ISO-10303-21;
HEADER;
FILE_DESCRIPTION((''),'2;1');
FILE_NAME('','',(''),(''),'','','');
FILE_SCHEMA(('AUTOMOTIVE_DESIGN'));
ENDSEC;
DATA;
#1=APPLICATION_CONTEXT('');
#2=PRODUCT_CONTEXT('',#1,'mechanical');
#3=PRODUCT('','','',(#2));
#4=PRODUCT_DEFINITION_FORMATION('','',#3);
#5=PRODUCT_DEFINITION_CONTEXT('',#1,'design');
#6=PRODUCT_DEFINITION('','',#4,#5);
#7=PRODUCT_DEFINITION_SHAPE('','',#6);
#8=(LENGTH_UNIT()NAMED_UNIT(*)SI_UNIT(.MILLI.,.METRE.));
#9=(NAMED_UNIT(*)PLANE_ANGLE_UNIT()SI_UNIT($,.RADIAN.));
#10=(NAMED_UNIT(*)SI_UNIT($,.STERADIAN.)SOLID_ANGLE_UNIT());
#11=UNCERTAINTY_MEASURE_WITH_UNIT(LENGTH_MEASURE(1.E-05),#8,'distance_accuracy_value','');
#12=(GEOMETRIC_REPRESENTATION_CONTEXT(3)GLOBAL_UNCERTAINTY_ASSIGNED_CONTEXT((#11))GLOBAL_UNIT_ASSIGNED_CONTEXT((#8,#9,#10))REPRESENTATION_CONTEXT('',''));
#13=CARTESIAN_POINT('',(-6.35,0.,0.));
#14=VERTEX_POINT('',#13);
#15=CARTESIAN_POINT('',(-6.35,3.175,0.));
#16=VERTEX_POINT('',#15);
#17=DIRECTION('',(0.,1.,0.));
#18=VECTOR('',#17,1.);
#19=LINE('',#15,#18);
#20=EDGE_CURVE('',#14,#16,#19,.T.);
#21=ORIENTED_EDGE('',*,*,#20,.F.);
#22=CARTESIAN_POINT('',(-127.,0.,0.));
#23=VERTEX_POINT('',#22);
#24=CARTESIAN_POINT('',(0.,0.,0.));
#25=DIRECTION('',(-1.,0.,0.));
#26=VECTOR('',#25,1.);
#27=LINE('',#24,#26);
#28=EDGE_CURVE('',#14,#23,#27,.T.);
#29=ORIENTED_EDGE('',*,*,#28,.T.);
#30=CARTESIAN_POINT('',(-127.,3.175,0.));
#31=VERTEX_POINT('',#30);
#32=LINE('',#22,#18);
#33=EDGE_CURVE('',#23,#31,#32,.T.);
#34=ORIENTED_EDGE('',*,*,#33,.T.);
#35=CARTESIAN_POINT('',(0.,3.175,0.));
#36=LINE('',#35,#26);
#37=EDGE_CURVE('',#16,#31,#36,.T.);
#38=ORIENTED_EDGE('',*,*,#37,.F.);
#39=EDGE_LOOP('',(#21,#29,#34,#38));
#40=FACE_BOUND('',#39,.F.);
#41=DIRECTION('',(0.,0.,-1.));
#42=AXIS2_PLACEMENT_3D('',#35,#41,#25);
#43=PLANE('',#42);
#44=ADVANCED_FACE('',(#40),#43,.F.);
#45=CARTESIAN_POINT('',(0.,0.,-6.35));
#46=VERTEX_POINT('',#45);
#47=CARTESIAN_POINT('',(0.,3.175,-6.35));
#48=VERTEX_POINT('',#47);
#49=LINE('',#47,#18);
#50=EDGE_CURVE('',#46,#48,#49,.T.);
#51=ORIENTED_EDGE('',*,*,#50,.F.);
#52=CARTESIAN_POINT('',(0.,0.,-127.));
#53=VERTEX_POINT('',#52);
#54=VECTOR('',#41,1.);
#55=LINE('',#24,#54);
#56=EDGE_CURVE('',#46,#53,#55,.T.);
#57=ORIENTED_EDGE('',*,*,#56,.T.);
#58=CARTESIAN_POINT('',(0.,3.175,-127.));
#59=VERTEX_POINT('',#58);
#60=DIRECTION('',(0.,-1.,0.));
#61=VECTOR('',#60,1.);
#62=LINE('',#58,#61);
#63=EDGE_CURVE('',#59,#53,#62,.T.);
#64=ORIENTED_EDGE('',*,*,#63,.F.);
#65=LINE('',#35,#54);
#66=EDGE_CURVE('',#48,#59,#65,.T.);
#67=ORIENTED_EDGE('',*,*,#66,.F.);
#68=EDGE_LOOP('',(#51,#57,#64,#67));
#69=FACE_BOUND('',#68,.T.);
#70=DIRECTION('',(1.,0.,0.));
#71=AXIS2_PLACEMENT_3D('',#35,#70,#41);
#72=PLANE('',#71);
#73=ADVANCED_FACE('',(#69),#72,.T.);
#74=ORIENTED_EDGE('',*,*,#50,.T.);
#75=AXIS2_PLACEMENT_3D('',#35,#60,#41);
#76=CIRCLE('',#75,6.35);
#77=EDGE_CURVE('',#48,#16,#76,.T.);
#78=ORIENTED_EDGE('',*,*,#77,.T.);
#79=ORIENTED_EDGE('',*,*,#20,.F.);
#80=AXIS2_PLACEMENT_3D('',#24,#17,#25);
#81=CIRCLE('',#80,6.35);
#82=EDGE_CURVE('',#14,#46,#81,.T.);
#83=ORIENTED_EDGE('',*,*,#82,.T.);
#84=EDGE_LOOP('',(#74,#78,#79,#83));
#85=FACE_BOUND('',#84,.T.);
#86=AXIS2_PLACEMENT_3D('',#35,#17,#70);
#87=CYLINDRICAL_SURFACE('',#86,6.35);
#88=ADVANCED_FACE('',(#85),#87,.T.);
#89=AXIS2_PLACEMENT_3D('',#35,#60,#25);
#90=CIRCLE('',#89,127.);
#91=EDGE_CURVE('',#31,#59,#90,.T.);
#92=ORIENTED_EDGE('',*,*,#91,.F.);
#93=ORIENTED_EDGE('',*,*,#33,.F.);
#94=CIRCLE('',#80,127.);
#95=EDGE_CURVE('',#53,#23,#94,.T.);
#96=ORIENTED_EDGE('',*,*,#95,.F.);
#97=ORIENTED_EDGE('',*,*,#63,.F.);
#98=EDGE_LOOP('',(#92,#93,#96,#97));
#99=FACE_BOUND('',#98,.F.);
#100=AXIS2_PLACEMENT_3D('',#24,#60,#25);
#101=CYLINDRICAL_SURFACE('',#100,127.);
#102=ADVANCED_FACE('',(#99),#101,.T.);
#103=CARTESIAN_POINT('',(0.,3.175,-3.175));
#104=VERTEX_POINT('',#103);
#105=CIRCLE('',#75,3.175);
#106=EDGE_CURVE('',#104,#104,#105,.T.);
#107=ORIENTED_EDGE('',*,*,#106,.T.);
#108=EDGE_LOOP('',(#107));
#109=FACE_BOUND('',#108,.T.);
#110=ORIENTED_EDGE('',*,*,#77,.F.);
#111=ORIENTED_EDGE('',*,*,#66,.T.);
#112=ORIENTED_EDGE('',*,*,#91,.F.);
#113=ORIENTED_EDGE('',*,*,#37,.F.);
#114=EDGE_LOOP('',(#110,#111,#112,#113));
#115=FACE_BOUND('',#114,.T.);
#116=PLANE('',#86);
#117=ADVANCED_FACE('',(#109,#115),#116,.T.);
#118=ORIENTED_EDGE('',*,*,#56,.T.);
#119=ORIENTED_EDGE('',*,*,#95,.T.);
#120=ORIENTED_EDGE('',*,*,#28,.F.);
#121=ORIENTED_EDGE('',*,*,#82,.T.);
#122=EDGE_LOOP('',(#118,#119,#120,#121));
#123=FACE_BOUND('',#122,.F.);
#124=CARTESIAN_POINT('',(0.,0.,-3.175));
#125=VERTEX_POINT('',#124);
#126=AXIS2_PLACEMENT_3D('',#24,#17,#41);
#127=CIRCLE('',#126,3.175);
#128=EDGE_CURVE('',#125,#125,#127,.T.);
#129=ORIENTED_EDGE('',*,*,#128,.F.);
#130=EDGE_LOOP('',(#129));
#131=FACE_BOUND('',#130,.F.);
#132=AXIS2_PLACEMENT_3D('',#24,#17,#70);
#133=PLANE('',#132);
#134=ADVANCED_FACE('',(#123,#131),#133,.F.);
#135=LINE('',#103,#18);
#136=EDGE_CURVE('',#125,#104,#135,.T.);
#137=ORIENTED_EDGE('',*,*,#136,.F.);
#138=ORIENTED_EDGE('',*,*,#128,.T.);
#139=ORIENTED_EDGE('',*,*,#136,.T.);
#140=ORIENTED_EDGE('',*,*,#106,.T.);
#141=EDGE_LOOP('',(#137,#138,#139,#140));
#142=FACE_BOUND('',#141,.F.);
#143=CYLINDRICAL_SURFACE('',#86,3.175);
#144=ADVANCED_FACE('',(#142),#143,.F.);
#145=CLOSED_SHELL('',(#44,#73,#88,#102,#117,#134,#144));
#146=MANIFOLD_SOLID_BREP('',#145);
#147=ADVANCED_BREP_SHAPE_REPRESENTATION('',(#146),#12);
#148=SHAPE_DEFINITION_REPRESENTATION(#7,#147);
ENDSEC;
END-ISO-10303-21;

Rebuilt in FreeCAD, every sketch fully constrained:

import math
import FreeCAD as App
import Part
import Sketcher
from FreeCAD import Vector
Q = App.Units.Quantity

doc = App.newDocument("Part")
body = doc.addObject("PartDesign::Body", "Body")

# Sketch on XZ plane
sketch1 = body.newObject("Sketcher::SketchObject", "Sketch")
sketch1.AttachmentSupport = (doc.getObject("XZ_Plane"), [""])
sketch1.MapMode = "FlatFace"
sketch1.addGeometry(Part.Circle(Vector(0, 0, 0), Vector(0, 0, 1), 127), False)
sketch1.addConstraint(Sketcher.Constraint("Coincident", 0, 3, -1, 1))
sketch1.addConstraint(Sketcher.Constraint("Diameter", 0, Q("10 in")))
pad1 = body.newObject("PartDesign::Pad", "Pad")
pad1.Profile = sketch1
pad1.Length = Q("0.125 in")
pad1.Reversed = True

# Sketch on XZ plane
sketch2 = body.newObject("Sketcher::SketchObject", "Sketch001")
sketch2.AttachmentSupport = (doc.getObject("XZ_Plane"), [""])
sketch2.MapMode = "FlatFace"
sketch2.AttachmentOffset = App.Placement(Vector(0, 0, -0.125 * 25.4), App.Rotation())
sketch2.addGeometry(Part.ArcOfCircle(Part.Circle(Vector(0, 0, 0), Vector(0, 0, 1), 127), math.radians(-90), math.radians(180)), False)
sketch2.addGeometry(Part.LineSegment(Vector(0, -127, 0), Vector(0, 0, 0)), False)
sketch2.addGeometry(Part.LineSegment(Vector(0, 0, 0), Vector(-127, 0, 0)), False)
sketch2.addConstraint(Sketcher.Constraint("Coincident", 0, 1, 1, 1))
sketch2.addConstraint(Sketcher.Constraint("Coincident", 1, 2, 2, 1))
sketch2.addConstraint(Sketcher.Constraint("Coincident", 2, 2, 0, 2))
sketch2.addConstraint(Sketcher.Constraint("Vertical", 1))
sketch2.addConstraint(Sketcher.Constraint("Horizontal", 2))
sketch2.addConstraint(Sketcher.Constraint("Coincident", 0, 3, -1, 1))
sketch2.addConstraint(Sketcher.Constraint("Coincident", 1, 2, -1, 1))
sketch2.addConstraint(Sketcher.Constraint("Radius", 0, Q("5 in")))
pocket1 = body.newObject("PartDesign::Pocket", "Pocket")
pocket1.Profile = sketch2
pocket1.Length = Q("0.125 in")
pocket1.Reversed = True

# Sketch on XZ plane
sketch3 = body.newObject("Sketcher::SketchObject", "Sketch002")
sketch3.AttachmentSupport = (doc.getObject("XZ_Plane"), [""])
sketch3.MapMode = "FlatFace"
sketch3.AttachmentOffset = App.Placement(Vector(0, 0, -0.125 * 25.4), App.Rotation())
sketch3.addGeometry(Part.Circle(Vector(0, 0, 0), Vector(0, 0, 1), 6.3), False)
sketch3.addGeometry(Part.Circle(Vector(0, 0, 0), Vector(0, 0, 1), 3.2), False)
sketch3.addConstraint(Sketcher.Constraint("Coincident", 0, 3, -1, 1))
sketch3.addConstraint(Sketcher.Constraint("Coincident", 1, 3, -1, 1))
sketch3.addConstraint(Sketcher.Constraint("Diameter", 0, Q("0.5 in")))
sketch3.addConstraint(Sketcher.Constraint("Diameter", 1, Q("0.25 in")))
pad2 = body.newObject("PartDesign::Pad", "Pad001")
pad2.Profile = sketch3
pad2.Length = Q("0.125 in")

# Sketch on XZ plane
sketch4 = body.newObject("Sketcher::SketchObject", "Sketch003")
sketch4.AttachmentSupport = (doc.getObject("XZ_Plane"), [""])
sketch4.MapMode = "FlatFace"
sketch4.AttachmentOffset = App.Placement(Vector(0, 0, -0.125 * 25.4), App.Rotation())
sketch4.addGeometry(Part.Circle(Vector(0, 0, 0), Vector(0, 0, 1), 3.2), False)
sketch4.addConstraint(Sketcher.Constraint("Coincident", 0, 3, -1, 1))
sketch4.addConstraint(Sketcher.Constraint("Diameter", 0, Q("0.25 in")))
pocket2 = body.newObject("PartDesign::Pocket", "Pocket001")
pocket2.Profile = sketch4
pocket2.Length = Q("0.25 in")
pocket2.Reversed = True

doc.recompute()
